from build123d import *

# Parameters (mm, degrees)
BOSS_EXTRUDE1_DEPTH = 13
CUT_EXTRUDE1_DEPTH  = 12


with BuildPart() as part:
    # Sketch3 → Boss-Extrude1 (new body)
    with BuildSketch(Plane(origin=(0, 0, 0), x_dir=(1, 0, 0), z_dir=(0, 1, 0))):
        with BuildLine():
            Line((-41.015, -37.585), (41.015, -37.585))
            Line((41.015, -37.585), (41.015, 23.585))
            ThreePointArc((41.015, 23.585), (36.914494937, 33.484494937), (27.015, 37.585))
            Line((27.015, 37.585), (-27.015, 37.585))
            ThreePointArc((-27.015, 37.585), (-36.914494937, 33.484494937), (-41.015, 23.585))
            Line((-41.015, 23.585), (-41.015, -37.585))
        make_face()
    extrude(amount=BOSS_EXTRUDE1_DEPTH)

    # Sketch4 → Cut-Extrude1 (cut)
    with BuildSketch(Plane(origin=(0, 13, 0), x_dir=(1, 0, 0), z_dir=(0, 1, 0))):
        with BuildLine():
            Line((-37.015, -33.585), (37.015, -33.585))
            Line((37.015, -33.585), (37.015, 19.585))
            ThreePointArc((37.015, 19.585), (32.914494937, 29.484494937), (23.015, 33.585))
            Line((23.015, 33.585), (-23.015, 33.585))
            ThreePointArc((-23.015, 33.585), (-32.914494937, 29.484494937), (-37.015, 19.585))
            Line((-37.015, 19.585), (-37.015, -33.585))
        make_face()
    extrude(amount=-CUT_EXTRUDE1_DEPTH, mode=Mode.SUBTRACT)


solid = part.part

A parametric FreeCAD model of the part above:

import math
import FreeCAD as App
import Part
import Sketcher

V = App.Vector
Q = App.Units.Quantity

doc = App.newDocument("Part")
body = doc.addObject("PartDesign::Body", "Body")

# Sketch on XZ plane
sketch1 = doc.addObject("Sketcher::SketchObject", "Sketch")
body.addObject(sketch1)
sketch1.AttachmentSupport = (doc.XZ_Plane, [""])
sketch1.MapMode = "FlatFace"
sketch1.addGeometry([
    Part.LineSegment(V(-41, 38, 0), V(41, 38, 0)),  # 0
    Part.LineSegment(V(41, 38, 0), V(41, -24, 0)),  # 1
    Part.ArcOfCircle(Part.Circle(V(27, -24, 0), V(0, 0, 1), 14), math.radians(-90), math.radians(0)),  # 2
    Part.LineSegment(V(27, -38, 0), V(-27, -38, 0)),  # 3
    Part.ArcOfCircle(Part.Circle(V(-27, -24, 0), V(0, 0, 1), 14), math.radians(180), math.radians(270)),  # 4
    Part.LineSegment(V(-41, -24, 0), V(-41, 38, 0)),  # 5
], False)
sketch1.addConstraint([
    Sketcher.Constraint("Coincident", 0, 2, 1, 1),
    Sketcher.Constraint("Tangent", 1, 2, 2, 2),
    Sketcher.Constraint("Tangent", 2, 1, 3, 1),
    Sketcher.Constraint("Tangent", 3, 2, 4, 2),
    Sketcher.Constraint("Tangent", 4, 1, 5, 1),
    Sketcher.Constraint("Coincident", 5, 2, 0, 1),
    Sketcher.Constraint("Horizontal", 0),
    Sketcher.Constraint("Vertical", 1),
    Sketcher.Constraint("Horizontal", 3),
    Sketcher.Constraint("Vertical", 5),
    Sketcher.Constraint("Equal", 2, 4),
    Sketcher.Constraint("Radius", 2, Q("14 mm")),
    Sketcher.Constraint("DistanceX", 0, 1, 0, 2, Q("82.03 mm")),
    Sketcher.Constraint("DistanceY", 1, 2, 1, 1, Q("61.17 mm")),
    Sketcher.Constraint("DistanceX", -1, 1, 2, 3, Q("27.015 mm")),
    Sketcher.Constraint("DistanceY", 2, 3, -1, 1, Q("23.585 mm")),
])
pad1 = doc.addObject("PartDesign::Pad", "Pad")
body.addObject(pad1)
pad1.Profile = sketch1
pad1.Length = 13
pad1.Reversed = True

# Sketch on XZ plane
sketch2 = doc.addObject("Sketcher::SketchObject", "Sketch001")
body.addObject(sketch2)
sketch2.AttachmentSupport = (doc.XZ_Plane, [""])
sketch2.MapMode = "FlatFace"
sketch2.AttachmentOffset = App.Placement(V(0, 0, -13), App.Rotation())
sketch2.addGeometry([
    Part.LineSegment(V(-37, 34, 0), V(37, 34, 0)),  # 0
    Part.LineSegment(V(37, 34, 0), V(37, -20, 0)),  # 1
    Part.ArcOfCircle(Part.Circle(V(23, -20, 0), V(0, 0, 1), 14), math.radians(-90), math.radians(0)),  # 2
    Part.LineSegment(V(23, -34, 0), V(-23, -34, 0)),  # 3
    Part.ArcOfCircle(Part.Circle(V(-23, -20, 0), V(0, 0, 1), 14), math.radians(180), math.radians(270)),  # 4
    Part.LineSegment(V(-37, -20, 0), V(-37, 34, 0)),  # 5
], False)
sketch2.addConstraint([
    Sketcher.Constraint("Coincident", 0, 2, 1, 1),
    Sketcher.Constraint("Tangent", 1, 2, 2, 2),
    Sketcher.Constraint("Tangent", 2, 1, 3, 1),
    Sketcher.Constraint("Tangent", 3, 2, 4, 2),
    Sketcher.Constraint("Tangent", 4, 1, 5, 1),
    Sketcher.Constraint("Coincident", 5, 2, 0, 1),
    Sketcher.Constraint("Horizontal", 0),
    Sketcher.Constraint("Vertical", 1),
    Sketcher.Constraint("Horizontal", 3),
    Sketcher.Constraint("Vertical", 5),
    Sketcher.Constraint("Equal", 2, 4),
    Sketcher.Constraint("Radius", 2, Q("14 mm")),
    Sketcher.Constraint("DistanceX", 0, 1, 0, 2, Q("74.03 mm")),
    Sketcher.Constraint("DistanceY", 1, 2, 1, 1, Q("53.17 mm")),
    Sketcher.Constraint("DistanceX", -1, 1, 2, 3, Q("23.015 mm")),
    Sketcher.Constraint("DistanceY", 2, 3, -1, 1, Q("19.585 mm")),
])
pocket1 = doc.addObject("PartDesign::Pocket", "Pocket")
body.addObject(pocket1)
pocket1.Profile = sketch2
pocket1.Length = 12
pocket1.Reversed = True

doc.recompute()
